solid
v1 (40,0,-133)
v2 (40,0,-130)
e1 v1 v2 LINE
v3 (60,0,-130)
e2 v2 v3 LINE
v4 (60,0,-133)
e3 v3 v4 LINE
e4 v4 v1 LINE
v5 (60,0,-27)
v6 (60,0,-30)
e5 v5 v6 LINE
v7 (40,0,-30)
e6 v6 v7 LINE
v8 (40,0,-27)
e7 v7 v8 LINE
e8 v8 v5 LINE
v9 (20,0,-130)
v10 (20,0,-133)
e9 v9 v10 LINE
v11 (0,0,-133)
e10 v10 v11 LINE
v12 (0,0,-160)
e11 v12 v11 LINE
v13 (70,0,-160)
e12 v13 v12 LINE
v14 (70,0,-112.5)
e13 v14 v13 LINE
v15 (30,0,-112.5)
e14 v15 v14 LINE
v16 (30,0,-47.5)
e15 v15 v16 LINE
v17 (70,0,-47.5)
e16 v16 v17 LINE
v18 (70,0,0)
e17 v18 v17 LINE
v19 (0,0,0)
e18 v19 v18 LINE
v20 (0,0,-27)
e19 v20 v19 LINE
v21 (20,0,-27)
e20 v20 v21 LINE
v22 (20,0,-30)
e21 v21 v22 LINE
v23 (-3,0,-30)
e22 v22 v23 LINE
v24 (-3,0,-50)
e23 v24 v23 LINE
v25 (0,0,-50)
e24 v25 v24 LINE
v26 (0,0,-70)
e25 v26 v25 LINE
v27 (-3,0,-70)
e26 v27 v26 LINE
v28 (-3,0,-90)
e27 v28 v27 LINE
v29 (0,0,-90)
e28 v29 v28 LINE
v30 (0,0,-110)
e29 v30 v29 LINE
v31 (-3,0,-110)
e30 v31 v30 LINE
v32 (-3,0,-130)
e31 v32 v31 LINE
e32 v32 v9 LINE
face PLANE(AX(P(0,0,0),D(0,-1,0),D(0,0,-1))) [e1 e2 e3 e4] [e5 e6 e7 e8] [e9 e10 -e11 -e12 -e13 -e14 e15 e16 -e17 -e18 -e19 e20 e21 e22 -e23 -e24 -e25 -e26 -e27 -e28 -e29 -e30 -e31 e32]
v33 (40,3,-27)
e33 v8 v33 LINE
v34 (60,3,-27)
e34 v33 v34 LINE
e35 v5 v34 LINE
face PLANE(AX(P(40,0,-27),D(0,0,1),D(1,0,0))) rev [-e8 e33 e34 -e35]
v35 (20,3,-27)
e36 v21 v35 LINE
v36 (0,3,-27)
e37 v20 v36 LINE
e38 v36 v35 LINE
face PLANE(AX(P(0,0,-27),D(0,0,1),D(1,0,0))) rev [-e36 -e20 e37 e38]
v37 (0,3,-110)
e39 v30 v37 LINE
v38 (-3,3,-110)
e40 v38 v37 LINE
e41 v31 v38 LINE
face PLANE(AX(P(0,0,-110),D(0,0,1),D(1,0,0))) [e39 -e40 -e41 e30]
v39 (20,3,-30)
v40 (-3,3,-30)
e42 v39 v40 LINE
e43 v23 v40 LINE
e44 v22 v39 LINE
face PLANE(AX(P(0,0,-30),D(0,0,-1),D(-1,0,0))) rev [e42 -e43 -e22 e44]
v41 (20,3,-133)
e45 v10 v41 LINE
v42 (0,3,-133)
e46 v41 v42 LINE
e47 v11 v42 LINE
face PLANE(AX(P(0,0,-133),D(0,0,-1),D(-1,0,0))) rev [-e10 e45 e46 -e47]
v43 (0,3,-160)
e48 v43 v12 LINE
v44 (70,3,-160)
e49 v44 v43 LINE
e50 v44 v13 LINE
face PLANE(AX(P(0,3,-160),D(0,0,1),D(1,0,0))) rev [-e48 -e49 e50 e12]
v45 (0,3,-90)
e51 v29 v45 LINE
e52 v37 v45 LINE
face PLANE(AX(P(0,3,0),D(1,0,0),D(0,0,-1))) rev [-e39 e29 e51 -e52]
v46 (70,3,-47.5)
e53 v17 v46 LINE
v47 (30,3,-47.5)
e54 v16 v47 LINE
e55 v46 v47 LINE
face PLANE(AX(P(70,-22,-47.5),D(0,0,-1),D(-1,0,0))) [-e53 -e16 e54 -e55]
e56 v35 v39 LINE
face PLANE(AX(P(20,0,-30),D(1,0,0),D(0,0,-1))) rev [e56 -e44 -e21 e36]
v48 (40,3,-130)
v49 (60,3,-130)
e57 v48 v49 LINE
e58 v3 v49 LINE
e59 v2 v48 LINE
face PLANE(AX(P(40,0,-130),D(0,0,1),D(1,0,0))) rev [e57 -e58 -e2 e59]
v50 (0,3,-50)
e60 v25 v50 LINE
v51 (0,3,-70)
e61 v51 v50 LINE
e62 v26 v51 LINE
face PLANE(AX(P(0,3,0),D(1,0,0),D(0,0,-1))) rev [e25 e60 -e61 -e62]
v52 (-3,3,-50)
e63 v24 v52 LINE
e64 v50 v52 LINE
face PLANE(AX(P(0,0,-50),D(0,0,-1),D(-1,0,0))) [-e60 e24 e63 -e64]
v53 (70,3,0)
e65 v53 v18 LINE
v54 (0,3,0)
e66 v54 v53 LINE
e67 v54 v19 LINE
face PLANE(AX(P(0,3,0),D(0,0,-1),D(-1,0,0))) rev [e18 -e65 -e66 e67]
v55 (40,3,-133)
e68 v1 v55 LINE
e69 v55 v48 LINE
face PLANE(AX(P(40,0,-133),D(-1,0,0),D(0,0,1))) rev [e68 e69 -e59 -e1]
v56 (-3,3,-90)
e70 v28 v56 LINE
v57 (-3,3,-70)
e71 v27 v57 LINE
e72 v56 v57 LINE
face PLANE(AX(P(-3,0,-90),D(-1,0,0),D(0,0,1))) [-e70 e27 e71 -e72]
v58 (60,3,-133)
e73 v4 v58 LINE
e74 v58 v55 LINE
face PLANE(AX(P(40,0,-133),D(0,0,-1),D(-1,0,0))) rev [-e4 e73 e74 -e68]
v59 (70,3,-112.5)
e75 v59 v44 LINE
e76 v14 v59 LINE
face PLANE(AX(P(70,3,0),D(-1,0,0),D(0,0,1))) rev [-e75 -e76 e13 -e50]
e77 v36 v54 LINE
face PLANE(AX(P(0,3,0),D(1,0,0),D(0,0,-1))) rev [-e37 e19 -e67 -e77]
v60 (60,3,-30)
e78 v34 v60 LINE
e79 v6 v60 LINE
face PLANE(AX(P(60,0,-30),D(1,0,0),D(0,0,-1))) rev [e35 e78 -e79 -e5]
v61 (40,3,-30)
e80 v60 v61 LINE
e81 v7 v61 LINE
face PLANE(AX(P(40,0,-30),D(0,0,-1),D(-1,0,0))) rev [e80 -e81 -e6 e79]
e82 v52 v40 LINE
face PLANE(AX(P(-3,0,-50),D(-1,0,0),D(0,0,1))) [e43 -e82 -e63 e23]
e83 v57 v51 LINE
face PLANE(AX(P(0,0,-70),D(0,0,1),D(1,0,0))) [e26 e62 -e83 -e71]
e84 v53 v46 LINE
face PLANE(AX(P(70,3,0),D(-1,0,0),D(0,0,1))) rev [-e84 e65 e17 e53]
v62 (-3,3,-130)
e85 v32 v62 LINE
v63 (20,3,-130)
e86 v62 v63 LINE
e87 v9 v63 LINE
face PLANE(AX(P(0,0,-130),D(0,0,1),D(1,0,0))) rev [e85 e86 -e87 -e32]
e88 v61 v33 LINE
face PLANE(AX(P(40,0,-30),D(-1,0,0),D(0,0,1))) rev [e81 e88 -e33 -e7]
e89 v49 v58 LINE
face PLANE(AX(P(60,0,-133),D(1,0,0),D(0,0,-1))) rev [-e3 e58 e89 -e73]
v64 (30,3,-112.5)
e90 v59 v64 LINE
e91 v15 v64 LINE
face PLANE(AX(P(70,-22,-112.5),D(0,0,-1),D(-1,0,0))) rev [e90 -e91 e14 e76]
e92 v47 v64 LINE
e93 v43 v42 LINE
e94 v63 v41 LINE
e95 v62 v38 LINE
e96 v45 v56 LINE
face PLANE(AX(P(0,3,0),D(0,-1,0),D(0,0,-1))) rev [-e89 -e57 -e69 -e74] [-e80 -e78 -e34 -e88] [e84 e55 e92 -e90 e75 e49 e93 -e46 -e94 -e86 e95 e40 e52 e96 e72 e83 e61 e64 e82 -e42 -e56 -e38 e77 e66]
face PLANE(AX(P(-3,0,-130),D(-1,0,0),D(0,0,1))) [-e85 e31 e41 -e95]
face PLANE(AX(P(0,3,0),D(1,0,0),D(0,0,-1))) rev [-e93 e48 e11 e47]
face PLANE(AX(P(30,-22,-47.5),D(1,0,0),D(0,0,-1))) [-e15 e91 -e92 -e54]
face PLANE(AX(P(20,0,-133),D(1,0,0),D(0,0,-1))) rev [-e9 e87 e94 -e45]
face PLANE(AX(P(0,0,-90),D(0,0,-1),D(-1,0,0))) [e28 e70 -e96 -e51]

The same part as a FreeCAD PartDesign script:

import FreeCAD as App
import Part
import Sketcher
Q = App.Units.Quantity

doc = App.newDocument("Part")
body = doc.addObject("PartDesign::Body", "Body")

# Sketch on XZ plane
sketch1 = doc.addObject("Sketcher::SketchObject", "Sketch")
body.addObject(sketch1)
sketch1.AttachmentSupport = (doc.XZ_Plane, [""])
sketch1.MapMode = "FlatFace"
sketch1.addGeometry([
    Part.LineSegment(App.Vector(0, -160, 0), App.Vector(0, 0, 0)),
    Part.LineSegment(App.Vector(0, 0, 0), App.Vector(70, 0, 0)),
    Part.LineSegment(App.Vector(70, 0, 0), App.Vector(70, -160, 0)),
    Part.LineSegment(App.Vector(70, -160, 0), App.Vector(0, -160, 0)),
], False)
sketch1.addConstraint([
    Sketcher.Constraint("Coincident", 0, 2, 1, 1),
    Sketcher.Constraint("Coincident", 1, 2, 2, 1),
    Sketcher.Constraint("Coincident", 2, 2, 3, 1),
    Sketcher.Constraint("Coincident", 3, 2, 0, 1),
    Sketcher.Constraint("Vertical", 0),
    Sketcher.Constraint("Horizontal", 1),
    Sketcher.Constraint("Vertical", 2),
    Sketcher.Constraint("Horizontal", 3),
    Sketcher.Constraint("Coincident", 0, 2, -1, 1),
    Sketcher.Constraint("DistanceX", 1, 1, 1, 2, Q("70 mm")),
    Sketcher.Constraint("DistanceY", 0, 1, 0, 2, Q("160 mm")),
])
pad1 = doc.addObject("PartDesign::Pad", "Pad")
body.addObject(pad1)
pad1.Profile = sketch1
pad1.Length = 3
pad1.Reversed = True

# Sketch on XZ plane
sketch2 = doc.addObject("Sketcher::SketchObject", "Sketch001")
body.addObject(sketch2)
sketch2.AttachmentSupport = (doc.XZ_Plane, [""])
sketch2.MapMode = "FlatFace"
sketch2.AttachmentOffset = App.Placement(App.Vector(0, 0, -3), App.Rotation())
sketch2.addGeometry([
    Part.LineSegment(App.Vector(0, -30, 0), App.Vector(0, -27, 0)),  # 0
    Part.LineSegment(App.Vector(0, -27, 0), App.Vector(20, -27, 0)),  # 1
    Part.LineSegment(App.Vector(20, -27, 0), App.Vector(20, -30, 0)),  # 2
    Part.LineSegment(App.Vector(20, -30, 0), App.Vector(0, -30, 0)),  # 3
    Part.LineSegment(App.Vector(0, -133, 0), App.Vector(0, -130, 0)),  # 4
    Part.LineSegment(App.Vector(0, -130, 0), App.Vector(20, -130, 0)),  # 5
    Part.LineSegment(App.Vector(20, -130, 0), App.Vector(20, -133, 0)),  # 6
    Part.LineSegment(App.Vector(20, -133, 0), App.Vector(0, -133, 0)),  # 7
    Part.LineSegment(App.Vector(40, -133, 0), App.Vector(40, -130, 0)),  # 8
    Part.LineSegment(App.Vector(40, -130, 0), App.Vector(60, -130, 0)),  # 9
    Part.LineSegment(App.Vector(60, -130, 0), App.Vector(60, -133, 0)),  # 10
    Part.LineSegment(App.Vector(60, -133, 0), App.Vector(40, -133, 0)),  # 11
    Part.LineSegment(App.Vector(40, -30, 0), App.Vector(40, -27, 0)),  # 12
    Part.LineSegment(App.Vector(40, -27, 0), App.Vector(60, -27, 0)),  # 13
    Part.LineSegment(App.Vector(60, -27, 0), App.Vector(60, -30, 0)),  # 14
    Part.LineSegment(App.Vector(60, -30, 0), App.Vector(40, -30, 0)),  # 15
], False)
sketch2.addConstraint([
    Sketcher.Constraint("Coincident", 0, 2, 1, 1),
    Sketcher.Constraint("Coincident", 1, 2, 2, 1),
    Sketcher.Constraint("Coincident", 2, 2, 3, 1),
    Sketcher.Constraint("Coincident", 3, 2, 0, 1),
    Sketcher.Constraint("Coincident", 4, 2, 5, 1),
    Sketcher.Constraint("Coincident", 5, 2, 6, 1),
    Sketcher.Constraint("Coincident", 6, 2, 7, 1),
    Sketcher.Constraint("Coincident", 7, 2, 4, 1),
    Sketcher.Constraint("Coincident", 8, 2, 9, 1),
    Sketcher.Constraint("Coincident", 9, 2, 10, 1),
    Sketcher.Constraint("Coincident", 10, 2, 11, 1),
    Sketcher.Constraint("Coincident", 11, 2, 8, 1),
    Sketcher.Constraint("Coincident", 12, 2, 13, 1),
    Sketcher.Constraint("Coincident", 13, 2, 14, 1),
    Sketcher.Constraint("Coincident", 14, 2, 15, 1),
    Sketcher.Constraint("Coincident", 15, 2, 12, 1),
    Sketcher.Constraint("Vertical", 0),
    Sketcher.Constraint("Horizontal", 1),
    Sketcher.Constraint("Vertical", 2),
    Sketcher.Constraint("Horizontal", 3),
    Sketcher.Constraint("Vertical", 4),
    Sketcher.Constraint("Horizontal", 5),
    Sketcher.Constraint("Vertical", 6),
    Sketcher.Constraint("Horizontal", 7),
    Sketcher.Constraint("Vertical", 8),
    Sketcher.Constraint("Horizontal", 9),
    Sketcher.Constraint("Vertical", 10),
    Sketcher.Constraint("Horizontal", 11),
    Sketcher.Constraint("Vertical", 12),
    Sketcher.Constraint("Horizontal", 13),
    Sketcher.Constraint("Vertical", 14),
    Sketcher.Constraint("Horizontal", 15),
    Sketcher.Constraint("PointOnObject", 0, 2, -2),
    Sketcher.Constraint("PointOnObject", 4, 2, -2),
    Sketcher.Constraint("Horizontal", 5, 2, 8, 2),
    Sketcher.Constraint("Horizontal", 7, 2, 10, 2),
    Sketcher.Constraint("Horizontal", 1, 2, 12, 2),
    Sketcher.Constraint("Horizontal", 3, 2, 14, 2),
    Sketcher.Constraint("Vertical", 2, 2, 5, 2),
    Sketcher.Constraint("Vertical", 11, 2, 12, 2),
    Sketcher.Constraint("Vertical", 10, 2, 13, 2),
    Sketcher.Constraint("Equal", 7, 9),
    Sketcher.Constraint("Equal", 2, 4),
    Sketcher.Constraint("DistanceX", 1, 1, 1, 2, Q("20 mm")),
    Sketcher.Constraint("DistanceY", 0, 1, 0, 2, Q("3 mm")),
    Sketcher.Constraint("DistanceY", 0, 2, -1, 1, Q("27 mm")),
    Sketcher.Constraint("DistanceY", 4, 2, -1, 1, Q("130 mm")),
    Sketcher.Constraint("DistanceX", -1, 1, 8, 2, Q("40 mm")),
])
pocket1 = doc.addObject("PartDesign::Pocket", "Pocket")
body.addObject(pocket1)
pocket1.Profile = sketch2
pocket1.Length = 3
pocket1.Reversed = True

# Sketch on XZ plane
sketch3 = doc.addObject("Sketcher::SketchObject", "Sketch002")
body.addObject(sketch3)
sketch3.AttachmentSupport = (doc.XZ_Plane, [""])
sketch3.MapMode = "FlatFace"
sketch3.AttachmentOffset = App.Placement(App.Vector(0, 0, -3), App.Rotation())
sketch3.addGeometry([
    Part.LineSegment(App.Vector(-3, -130, 0), App.Vector(-3, -110, 0)),  # 0
    Part.LineSegment(App.Vector(-3, -110, 0), App.Vector(0, -110, 0)),  # 1
    Part.LineSegment(App.Vector(0, -110, 0), App.Vector(0, -130, 0)),  # 2
    Part.LineSegment(App.Vector(0, -130, 0), App.Vector(-3, -130, 0)),  # 3
    Part.LineSegment(App.Vector(-3, -90, 0), App.Vector(-3, -70, 0)),  # 4
    Part.LineSegment(App.Vector(-3, -70, 0), App.Vector(0, -70, 0)),  # 5
    Part.LineSegment(App.Vector(0, -70, 0), App.Vector(0, -90, 0)),  # 6
    Part.LineSegment(App.Vector(0, -90, 0), App.Vector(-3, -90, 0)),  # 7
    Part.LineSegment(App.Vector(-3, -50, 0), App.Vector(-3, -30, 0)),  # 8
    Part.LineSegment(App.Vector(-3, -30, 0), App.Vector(0, -30, 0)),  # 9
    Part.LineSegment(App.Vector(0, -30, 0), App.Vector(0, -50, 0)),  # 10
    Part.LineSegment(App.Vector(0, -50, 0), App.Vector(-3, -50, 0)),  # 11
], False)
sketch3.addConstraint([
    Sketcher.Constraint("Coincident", 0, 2, 1, 1),
    Sketcher.Constraint("Coincident", 1, 2, 2, 1),
    Sketcher.Constraint("Coincident", 2, 2, 3, 1),
    Sketcher.Constraint("Coincident", 3, 2, 0, 1),
    Sketcher.Constraint("Coincident", 4, 2, 5, 1),
    Sketcher.Constraint("Coincident", 5, 2, 6, 1),
    Sketcher.Constraint("Coincident", 6, 2, 7, 1),
    Sketcher.Constraint("Coincident", 7, 2, 4, 1),
    Sketcher.Constraint("Coincident", 8, 2, 9, 1),
    Sketcher.Constraint("Coincident", 9, 2, 10, 1),
    Sketcher.Constraint("Coincident", 10, 2, 11, 1),
    Sketcher.Constraint("Coincident", 11, 2, 8, 1),
    Sketcher.Constraint("Vertical", 0),
    Sketcher.Constraint("Horizontal", 1),
    Sketcher.Constraint("Vertical", 2),
    Sketcher.Constraint("Horizontal", 3),
    Sketcher.Constraint("Vertical", 4),
    Sketcher.Constraint("Horizontal", 5),
    Sketcher.Constraint("Vertical", 6),
    Sketcher.Constraint("Horizontal", 7),
    Sketcher.Constraint("Vertical", 8),
    Sketcher.Constraint("Horizontal", 9),
    Sketcher.Constraint("Vertical", 10),
    Sketcher.Constraint("Horizontal", 11),
    Sketcher.Constraint("PointOnObject", 1, 2, -2),
    Sketcher.Constraint("PointOnObject", 5, 2, -2),
    Sketcher.Constraint("PointOnObject", 9, 2, -2),
    Sketcher.Constraint("Vertical", 3, 2, 4, 2),
    Sketcher.Constraint("Vertical", 7, 2, 8, 2),
    Sketcher.Constraint("Equal", 2, 4),
    Sketcher.Constraint("Equal", 6, 8),
    Sketcher.Constraint("DistanceX", 1, 1, 1, 2, Q("3 mm")),
    Sketcher.Constraint("DistanceY", 0, 1, 0, 2, Q("20 mm")),
    Sketcher.Constraint("DistanceY", 0, 2, -1, 1, Q("110 mm")),
    Sketcher.Constraint("DistanceY", 4, 2, -1, 1, Q("70 mm")),
    Sketcher.Constraint("DistanceY", 8, 2, -1, 1, Q("30 mm")),
])
pad2 = doc.addObject("PartDesign::Pad", "Pad001")
body.addObject(pad2)
pad2.Profile = sketch3
pad2.Length = 3

# Sketch on XZ plane
sketch4 = doc.addObject("Sketcher::SketchObject", "Sketch003")
body.addObject(sketch4)
sketch4.AttachmentSupport = (doc.XZ_Plane, [""])
sketch4.MapMode = "FlatFace"
sketch4.AttachmentOffset = App.Placement(App.Vector(0, 0, -3), App.Rotation())
sketch4.addGeometry([
    Part.LineSegment(App.Vector(30, -112, 0), App.Vector(30, -48, 0)),
    Part.LineSegment(App.Vector(30, -48, 0), App.Vector(70, -48, 0)),
    Part.LineSegment(App.Vector(70, -48, 0), App.Vector(70, -112, 0)),
    Part.LineSegment(App.Vector(70, -112, 0), App.Vector(30, -112, 0)),
], False)
sketch4.addConstraint([
    Sketcher.Constraint("Coincident", 0, 2, 1, 1),
    Sketcher.Constraint("Coincident", 1, 2, 2, 1),
    Sketcher.Constraint("Coincident", 2, 2, 3, 1),
    Sketcher.Constraint("Coincident", 3, 2, 0, 1),
    Sketcher.Constraint("Vertical", 0),
    Sketcher.Constraint("Horizontal", 1),
    Sketcher.Constraint("Vertical", 2),
    Sketcher.Constraint("Horizontal", 3),
    Sketcher.Constraint("DistanceX", 1, 1, 1, 2, Q("40 mm")),
    Sketcher.Constraint("DistanceY", 0, 1, 0, 2, Q("65 mm")),
    Sketcher.Constraint("DistanceX", -1, 1, 0, 2, Q("30 mm")),
    Sketcher.Constraint("DistanceY", 0, 2, -1, 1, Q("47.5 mm")),
])
pocket2 = doc.addObject("PartDesign::Pocket", "Pocket001")
body.addObject(pocket2)
pocket2.Profile = sketch4
pocket2.Length = 25
pocket2.Reversed = True

doc.recompute()
